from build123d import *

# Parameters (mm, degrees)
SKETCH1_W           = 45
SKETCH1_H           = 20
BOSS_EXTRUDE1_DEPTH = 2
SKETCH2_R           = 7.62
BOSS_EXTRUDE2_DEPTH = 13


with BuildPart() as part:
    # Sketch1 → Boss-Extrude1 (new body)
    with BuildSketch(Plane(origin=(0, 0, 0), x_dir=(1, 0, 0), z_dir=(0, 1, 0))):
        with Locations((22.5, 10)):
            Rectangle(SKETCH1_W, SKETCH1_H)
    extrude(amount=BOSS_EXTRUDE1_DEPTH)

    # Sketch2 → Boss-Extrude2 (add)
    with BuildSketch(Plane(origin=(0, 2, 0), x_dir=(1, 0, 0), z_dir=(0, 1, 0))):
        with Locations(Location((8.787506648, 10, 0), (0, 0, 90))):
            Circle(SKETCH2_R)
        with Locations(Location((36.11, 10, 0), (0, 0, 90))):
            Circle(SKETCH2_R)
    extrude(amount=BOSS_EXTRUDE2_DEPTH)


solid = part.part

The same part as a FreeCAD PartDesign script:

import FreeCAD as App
import Part
import Sketcher

V = App.Vector
Q = App.Units.Quantity

doc = App.newDocument("Part")
body = doc.addObject("PartDesign::Body", "Body")

# Sketch on XZ plane
sketch1 = body.newObject("Sketcher::SketchObject", "Sketch")
sketch1.AttachmentSupport = (doc.getObject("XZ_Plane"), [""])
sketch1.MapMode = "FlatFace"
sketch1.addGeometry([
    Part.LineSegment(V(0, -20, 0), V(0, 0, 0)),
    Part.LineSegment(V(0, 0, 0), V(45, 0, 0)),
    Part.LineSegment(V(45, 0, 0), V(45, -20, 0)),
    Part.LineSegment(V(45, -20, 0), V(0, -20, 0)),
], False)
sketch1.addConstraint([
    Sketcher.Constraint("Coincident", 0, 2, 1, 1),
    Sketcher.Constraint("Coincident", 1, 2, 2, 1),
    Sketcher.Constraint("Coincident", 2, 2, 3, 1),
    Sketcher.Constraint("Coincident", 3, 2, 0, 1),
    Sketcher.Constraint("Vertical", 0),
    Sketcher.Constraint("Horizontal", 1),
    Sketcher.Constraint("Vertical", 2),
    Sketcher.Constraint("Horizontal", 3),
    Sketcher.Constraint("Coincident", 0, 2, -1, 1),
    Sketcher.Constraint("DistanceX", 1, 1, 1, 2, Q("45 mm")),
    Sketcher.Constraint("DistanceY", 0, 1, 0, 2, Q("20 mm")),
])
pad1 = body.newObject("PartDesign::Pad", "Pad")
pad1.Profile = sketch1
pad1.Length = 2
pad1.Reversed = True

# Sketch on XZ plane
sketch2 = body.newObject("Sketcher::SketchObject", "Sketch001")
sketch2.AttachmentSupport = (doc.getObject("XZ_Plane"), [""])
sketch2.MapMode = "FlatFace"
sketch2.AttachmentOffset = App.Placement(V(0, 0, -2), App.Rotation())
sketch2.addGeometry([
    Part.Circle(V(9, -10, 0), V(0, 0, 1), 8),
    Part.Circle(V(36, -10, 0), V(0, 0, 1), 8),
], False)
sketch2.addConstraint([
    Sketcher.Constraint("Equal", 0, 1),
    Sketcher.Constraint("Horizontal", 0, 3, 1, 3),
    Sketcher.Constraint("Diameter", 0, Q("15.24 mm")),
    Sketcher.Constraint("DistanceY", 0, 3, -1, 1, Q("10 mm")),
    Sketcher.Constraint("DistanceX", -1, 1, 1, 3, Q("36.11 mm")),
    Sketcher.Constraint("DistanceX", -1, 1, 0, 3, Q("8.787507 mm")),
])
pad2 = body.newObject("PartDesign::Pad", "Pad001")
pad2.Profile = sketch2
pad2.Length = 13
pad2.Reversed = True

doc.recompute()
